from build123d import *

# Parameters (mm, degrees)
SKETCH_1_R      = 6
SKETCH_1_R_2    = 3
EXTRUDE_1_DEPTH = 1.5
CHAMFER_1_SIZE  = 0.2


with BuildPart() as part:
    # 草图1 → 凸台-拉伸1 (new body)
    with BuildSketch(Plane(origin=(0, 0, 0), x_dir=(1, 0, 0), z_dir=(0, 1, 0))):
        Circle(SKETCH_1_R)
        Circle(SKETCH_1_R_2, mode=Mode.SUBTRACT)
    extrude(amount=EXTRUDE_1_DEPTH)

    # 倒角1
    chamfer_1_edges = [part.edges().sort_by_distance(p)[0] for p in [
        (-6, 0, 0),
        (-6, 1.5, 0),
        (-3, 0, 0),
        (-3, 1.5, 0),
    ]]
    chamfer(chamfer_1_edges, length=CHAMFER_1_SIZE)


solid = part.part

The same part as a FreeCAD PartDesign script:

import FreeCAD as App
import Part
import Sketcher

V = App.Vector


def edges_at(feature, points):
    """Names of the edges that pass closest to the given points."""
    edges = feature.Shape.Edges
    near = lambda p: min(range(len(edges)), key=lambda i: edges[i].distToShape(Part.Vertex(*p))[0])
    return sorted({f"Edge{near(p) + 1}" for p in points})

doc = App.newDocument("Part")
body = doc.addObject("PartDesign::Body", "Body")

# Sketch on XZ plane
sketch1 = body.newObject("Sketcher::SketchObject", "Sketch")
sketch1.AttachmentSupport = (doc.getObject("XZ_Plane"), [""])
sketch1.MapMode = "FlatFace"
sketch1.addGeometry(Part.Circle(V(0, 0, 0), V(0, 0, 1), 6), False)
sketch1.addGeometry(Part.Circle(V(0, 0, 0), V(0, 0, 1), 3), False)
sketch1.addConstraint(Sketcher.Constraint("Coincident", 0, 3, -1, 1))
sketch1.addConstraint(Sketcher.Constraint("Coincident", 1, 3, -1, 1))
sketch1.addConstraint(Sketcher.Constraint("Diameter", 0, 12.0))
sketch1.addConstraint(Sketcher.Constraint("Diameter", 1, 6.0))
pad1 = body.newObject("PartDesign::Pad", "Pad")
pad1.Profile = sketch1
pad1.Length = 1.5
pad1.Reversed = True
doc.recompute()

chamfer = body.newObject("PartDesign::Chamfer", "Chamfer")
chamfer.Base = (pad1, edges_at(pad1, [
    (-6, 0, 0),
    (-6, 1.5, 0),
    (-3, 0, 0),
    (-3, 1.5, 0),
]))
chamfer.Size = 0.2

doc.recompute()
